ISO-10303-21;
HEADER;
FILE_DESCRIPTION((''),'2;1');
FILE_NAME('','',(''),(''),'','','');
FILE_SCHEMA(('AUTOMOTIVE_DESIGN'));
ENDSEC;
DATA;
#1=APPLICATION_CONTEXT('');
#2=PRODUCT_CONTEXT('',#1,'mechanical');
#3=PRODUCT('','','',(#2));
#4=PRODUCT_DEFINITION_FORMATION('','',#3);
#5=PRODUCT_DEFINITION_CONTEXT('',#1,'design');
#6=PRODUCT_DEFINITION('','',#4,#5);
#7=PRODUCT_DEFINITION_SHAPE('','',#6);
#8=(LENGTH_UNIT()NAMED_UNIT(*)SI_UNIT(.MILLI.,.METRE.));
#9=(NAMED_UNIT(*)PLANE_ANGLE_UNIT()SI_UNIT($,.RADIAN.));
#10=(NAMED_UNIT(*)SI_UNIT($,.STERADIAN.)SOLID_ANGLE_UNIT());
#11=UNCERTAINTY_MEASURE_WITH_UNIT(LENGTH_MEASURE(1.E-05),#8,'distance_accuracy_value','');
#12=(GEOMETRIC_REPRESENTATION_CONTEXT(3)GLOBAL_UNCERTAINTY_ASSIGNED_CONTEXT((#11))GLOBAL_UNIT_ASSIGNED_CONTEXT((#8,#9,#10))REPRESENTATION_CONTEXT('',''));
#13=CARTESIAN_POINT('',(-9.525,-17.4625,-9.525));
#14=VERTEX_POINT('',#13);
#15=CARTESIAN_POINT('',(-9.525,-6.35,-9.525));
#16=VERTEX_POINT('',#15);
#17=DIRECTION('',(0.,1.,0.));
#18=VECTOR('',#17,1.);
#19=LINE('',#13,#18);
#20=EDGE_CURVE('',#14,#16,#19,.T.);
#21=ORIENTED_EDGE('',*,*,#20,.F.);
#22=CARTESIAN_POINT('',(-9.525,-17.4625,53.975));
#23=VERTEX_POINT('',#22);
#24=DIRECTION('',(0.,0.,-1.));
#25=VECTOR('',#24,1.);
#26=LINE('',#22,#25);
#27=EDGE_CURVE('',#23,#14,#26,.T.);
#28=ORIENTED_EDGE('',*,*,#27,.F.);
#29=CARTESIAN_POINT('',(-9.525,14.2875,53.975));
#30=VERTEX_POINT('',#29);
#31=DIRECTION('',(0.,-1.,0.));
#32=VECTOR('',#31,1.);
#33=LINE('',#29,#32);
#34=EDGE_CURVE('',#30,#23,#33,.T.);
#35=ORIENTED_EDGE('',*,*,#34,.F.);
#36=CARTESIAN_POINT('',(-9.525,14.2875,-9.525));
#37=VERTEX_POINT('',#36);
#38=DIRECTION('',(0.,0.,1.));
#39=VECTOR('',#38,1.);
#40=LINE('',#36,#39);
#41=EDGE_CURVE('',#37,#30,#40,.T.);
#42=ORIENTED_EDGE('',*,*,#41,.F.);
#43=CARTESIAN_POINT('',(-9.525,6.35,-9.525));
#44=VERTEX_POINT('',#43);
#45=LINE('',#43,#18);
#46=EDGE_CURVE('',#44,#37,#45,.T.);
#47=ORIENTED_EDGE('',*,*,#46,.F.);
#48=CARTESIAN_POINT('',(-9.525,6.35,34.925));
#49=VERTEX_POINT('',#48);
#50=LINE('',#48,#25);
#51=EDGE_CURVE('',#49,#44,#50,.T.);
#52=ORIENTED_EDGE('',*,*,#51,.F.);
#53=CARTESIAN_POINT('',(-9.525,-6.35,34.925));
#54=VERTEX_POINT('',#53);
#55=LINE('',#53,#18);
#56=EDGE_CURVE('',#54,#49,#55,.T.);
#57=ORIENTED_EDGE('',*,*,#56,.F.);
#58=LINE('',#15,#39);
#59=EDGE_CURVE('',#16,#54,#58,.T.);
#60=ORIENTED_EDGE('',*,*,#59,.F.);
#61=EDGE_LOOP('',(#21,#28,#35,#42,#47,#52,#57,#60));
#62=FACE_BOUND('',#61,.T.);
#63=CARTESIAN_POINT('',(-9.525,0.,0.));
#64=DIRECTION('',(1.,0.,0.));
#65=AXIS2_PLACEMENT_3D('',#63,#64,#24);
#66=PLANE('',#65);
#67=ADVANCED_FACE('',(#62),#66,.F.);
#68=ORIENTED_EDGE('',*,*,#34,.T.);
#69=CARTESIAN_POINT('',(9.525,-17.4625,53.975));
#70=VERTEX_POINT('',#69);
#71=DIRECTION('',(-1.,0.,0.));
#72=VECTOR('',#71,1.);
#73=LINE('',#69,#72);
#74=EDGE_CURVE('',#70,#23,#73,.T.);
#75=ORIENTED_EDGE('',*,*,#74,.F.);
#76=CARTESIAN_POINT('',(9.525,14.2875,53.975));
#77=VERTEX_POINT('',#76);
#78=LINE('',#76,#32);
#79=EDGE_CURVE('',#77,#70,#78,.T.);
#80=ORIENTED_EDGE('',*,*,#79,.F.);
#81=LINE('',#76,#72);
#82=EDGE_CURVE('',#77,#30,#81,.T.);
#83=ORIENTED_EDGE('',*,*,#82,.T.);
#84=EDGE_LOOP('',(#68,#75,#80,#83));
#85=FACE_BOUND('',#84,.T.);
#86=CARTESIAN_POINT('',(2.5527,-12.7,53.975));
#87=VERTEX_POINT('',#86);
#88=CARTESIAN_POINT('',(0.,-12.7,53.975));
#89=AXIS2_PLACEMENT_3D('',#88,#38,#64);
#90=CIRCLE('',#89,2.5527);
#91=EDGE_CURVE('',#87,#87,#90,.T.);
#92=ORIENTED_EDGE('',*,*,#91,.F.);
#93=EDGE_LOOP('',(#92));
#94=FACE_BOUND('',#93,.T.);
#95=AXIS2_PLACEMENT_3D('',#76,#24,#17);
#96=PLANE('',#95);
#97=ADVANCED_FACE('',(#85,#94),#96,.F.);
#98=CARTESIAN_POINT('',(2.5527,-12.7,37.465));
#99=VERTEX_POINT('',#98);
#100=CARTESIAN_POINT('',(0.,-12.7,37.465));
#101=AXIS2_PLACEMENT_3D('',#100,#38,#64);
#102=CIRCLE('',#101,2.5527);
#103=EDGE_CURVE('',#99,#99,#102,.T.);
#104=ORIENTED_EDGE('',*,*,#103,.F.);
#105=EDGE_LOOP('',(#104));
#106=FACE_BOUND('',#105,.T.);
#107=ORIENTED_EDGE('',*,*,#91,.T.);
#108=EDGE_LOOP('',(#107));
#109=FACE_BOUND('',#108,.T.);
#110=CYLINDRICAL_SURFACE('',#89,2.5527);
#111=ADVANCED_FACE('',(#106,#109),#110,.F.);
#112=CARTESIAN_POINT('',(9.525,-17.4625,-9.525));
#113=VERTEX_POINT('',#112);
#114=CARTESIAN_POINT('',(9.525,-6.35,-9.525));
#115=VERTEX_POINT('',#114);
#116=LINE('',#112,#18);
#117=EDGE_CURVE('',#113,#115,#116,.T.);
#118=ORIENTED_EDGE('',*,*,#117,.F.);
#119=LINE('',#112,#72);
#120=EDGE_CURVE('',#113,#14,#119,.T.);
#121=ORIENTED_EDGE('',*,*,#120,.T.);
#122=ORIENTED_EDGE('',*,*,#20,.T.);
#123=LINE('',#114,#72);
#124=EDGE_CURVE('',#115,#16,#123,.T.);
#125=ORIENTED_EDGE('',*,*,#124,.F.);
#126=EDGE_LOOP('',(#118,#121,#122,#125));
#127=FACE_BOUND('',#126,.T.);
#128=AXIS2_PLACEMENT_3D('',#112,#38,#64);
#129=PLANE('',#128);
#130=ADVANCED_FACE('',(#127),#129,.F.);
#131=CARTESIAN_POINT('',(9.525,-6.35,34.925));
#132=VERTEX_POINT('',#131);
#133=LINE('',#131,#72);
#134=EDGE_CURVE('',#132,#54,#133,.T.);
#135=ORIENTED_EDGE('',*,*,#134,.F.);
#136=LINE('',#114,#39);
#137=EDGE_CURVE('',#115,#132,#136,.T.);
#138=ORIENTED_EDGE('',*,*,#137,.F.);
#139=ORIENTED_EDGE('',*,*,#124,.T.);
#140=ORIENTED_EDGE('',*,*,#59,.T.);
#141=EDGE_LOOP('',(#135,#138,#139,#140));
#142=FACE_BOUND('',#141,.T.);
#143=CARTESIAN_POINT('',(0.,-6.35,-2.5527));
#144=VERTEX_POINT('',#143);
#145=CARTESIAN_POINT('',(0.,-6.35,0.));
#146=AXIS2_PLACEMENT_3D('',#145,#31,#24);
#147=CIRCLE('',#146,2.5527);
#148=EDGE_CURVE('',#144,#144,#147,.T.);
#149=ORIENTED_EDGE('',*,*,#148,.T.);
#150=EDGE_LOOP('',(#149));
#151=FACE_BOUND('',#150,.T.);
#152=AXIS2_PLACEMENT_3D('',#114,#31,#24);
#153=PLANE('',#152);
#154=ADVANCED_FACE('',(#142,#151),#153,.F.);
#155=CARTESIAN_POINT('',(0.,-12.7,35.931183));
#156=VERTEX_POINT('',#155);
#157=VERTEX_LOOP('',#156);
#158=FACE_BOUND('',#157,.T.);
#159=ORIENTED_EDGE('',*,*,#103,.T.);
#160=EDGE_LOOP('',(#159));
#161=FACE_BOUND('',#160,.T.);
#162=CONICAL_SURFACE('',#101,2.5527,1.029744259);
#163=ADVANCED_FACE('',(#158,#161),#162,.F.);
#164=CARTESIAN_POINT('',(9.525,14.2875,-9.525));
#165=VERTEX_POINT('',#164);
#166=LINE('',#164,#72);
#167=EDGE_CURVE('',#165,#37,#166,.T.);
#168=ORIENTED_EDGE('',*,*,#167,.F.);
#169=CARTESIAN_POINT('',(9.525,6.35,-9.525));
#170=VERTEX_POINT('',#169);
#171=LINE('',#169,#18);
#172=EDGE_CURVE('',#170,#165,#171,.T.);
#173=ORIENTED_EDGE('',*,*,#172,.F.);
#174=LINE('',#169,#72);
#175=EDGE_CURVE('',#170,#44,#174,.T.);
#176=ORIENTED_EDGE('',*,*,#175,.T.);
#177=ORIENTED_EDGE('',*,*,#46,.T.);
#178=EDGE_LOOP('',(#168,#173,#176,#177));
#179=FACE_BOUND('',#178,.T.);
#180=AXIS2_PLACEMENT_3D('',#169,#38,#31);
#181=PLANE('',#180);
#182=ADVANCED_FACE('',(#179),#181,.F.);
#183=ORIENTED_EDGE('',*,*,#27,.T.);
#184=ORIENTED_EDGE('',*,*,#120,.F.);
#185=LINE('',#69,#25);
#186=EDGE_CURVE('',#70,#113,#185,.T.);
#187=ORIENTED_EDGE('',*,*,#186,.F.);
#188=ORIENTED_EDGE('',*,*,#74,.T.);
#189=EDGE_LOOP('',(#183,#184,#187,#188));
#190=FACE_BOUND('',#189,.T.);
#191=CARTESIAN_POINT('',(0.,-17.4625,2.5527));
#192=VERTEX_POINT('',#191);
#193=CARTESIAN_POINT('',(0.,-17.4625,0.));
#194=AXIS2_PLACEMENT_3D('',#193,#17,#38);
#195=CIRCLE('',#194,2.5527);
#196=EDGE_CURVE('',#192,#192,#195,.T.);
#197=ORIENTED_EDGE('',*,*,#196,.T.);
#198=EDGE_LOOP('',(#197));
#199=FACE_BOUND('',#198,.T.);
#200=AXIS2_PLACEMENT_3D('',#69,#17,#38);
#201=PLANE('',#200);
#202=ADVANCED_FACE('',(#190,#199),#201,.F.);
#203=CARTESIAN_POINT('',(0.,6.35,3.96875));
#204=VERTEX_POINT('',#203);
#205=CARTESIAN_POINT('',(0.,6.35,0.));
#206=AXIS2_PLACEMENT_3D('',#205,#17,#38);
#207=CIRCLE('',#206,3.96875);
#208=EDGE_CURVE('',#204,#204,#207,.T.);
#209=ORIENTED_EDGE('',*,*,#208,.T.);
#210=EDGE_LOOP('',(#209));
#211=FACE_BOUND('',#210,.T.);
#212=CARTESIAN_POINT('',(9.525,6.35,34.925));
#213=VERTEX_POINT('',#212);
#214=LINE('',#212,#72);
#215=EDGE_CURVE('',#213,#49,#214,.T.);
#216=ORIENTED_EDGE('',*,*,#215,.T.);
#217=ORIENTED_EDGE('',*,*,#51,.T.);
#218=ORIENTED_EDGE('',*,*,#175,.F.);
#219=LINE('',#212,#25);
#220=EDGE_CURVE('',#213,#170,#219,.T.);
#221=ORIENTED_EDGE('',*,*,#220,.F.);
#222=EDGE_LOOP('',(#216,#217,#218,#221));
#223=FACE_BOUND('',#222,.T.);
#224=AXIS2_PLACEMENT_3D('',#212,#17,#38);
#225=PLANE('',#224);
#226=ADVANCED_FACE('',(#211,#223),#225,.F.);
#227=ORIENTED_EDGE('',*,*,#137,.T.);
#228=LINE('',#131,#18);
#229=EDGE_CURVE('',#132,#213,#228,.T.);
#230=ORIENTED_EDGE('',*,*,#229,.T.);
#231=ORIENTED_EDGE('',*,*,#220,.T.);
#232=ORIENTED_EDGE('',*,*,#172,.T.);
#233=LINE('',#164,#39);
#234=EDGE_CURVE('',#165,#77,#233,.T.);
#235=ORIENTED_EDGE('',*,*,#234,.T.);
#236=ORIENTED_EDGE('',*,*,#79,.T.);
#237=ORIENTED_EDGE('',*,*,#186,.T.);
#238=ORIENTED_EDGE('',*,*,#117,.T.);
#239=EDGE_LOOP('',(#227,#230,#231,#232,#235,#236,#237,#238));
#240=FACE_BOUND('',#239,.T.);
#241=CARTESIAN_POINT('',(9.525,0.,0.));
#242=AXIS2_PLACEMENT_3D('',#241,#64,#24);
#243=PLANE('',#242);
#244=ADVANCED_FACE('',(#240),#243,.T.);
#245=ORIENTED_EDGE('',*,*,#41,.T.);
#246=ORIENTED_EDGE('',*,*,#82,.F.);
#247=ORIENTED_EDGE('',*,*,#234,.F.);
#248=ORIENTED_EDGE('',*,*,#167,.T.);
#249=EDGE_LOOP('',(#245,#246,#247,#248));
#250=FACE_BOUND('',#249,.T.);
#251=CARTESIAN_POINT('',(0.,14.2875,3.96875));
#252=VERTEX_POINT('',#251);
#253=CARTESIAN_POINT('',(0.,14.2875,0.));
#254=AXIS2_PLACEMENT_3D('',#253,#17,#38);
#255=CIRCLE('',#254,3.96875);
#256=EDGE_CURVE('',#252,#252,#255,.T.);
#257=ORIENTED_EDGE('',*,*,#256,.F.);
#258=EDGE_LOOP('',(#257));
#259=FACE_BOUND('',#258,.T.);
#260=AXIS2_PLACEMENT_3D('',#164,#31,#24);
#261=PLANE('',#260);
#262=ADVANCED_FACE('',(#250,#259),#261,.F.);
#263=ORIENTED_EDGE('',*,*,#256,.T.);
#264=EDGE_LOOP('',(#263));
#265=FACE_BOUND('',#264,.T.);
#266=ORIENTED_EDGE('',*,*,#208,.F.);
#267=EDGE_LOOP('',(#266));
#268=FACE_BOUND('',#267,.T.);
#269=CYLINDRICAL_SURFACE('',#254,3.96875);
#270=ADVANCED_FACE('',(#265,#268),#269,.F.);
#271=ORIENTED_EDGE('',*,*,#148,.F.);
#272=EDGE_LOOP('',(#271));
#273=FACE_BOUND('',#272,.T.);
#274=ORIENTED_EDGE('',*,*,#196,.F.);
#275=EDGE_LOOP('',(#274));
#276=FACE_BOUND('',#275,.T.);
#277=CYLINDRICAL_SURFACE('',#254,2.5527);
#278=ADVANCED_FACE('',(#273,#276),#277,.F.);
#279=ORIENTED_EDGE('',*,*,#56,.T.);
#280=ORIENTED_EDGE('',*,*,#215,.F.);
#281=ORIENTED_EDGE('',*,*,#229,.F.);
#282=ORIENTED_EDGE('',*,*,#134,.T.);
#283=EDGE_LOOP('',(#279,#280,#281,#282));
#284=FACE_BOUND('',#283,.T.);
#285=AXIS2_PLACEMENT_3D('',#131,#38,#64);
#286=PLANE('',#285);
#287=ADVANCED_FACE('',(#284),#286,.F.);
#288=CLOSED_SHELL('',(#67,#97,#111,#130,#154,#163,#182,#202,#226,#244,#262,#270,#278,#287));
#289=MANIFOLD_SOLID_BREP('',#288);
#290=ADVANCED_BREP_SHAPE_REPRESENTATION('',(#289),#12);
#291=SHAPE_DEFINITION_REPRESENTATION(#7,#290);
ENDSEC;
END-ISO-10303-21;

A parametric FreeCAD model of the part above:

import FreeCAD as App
import Part
import Sketcher
from FreeCAD import Vector
Q = App.Units.Quantity


def add_polygon(sketch, points):
    """Adds a closed chain of lines whose ends are joined by coincident constraints."""
    first, n = sketch.GeometryCount, len(points)
    for a, b in zip(points, points[1:] + points[:1]):
        sketch.addGeometry(Part.LineSegment(App.Vector(*a, 0), App.Vector(*b, 0)), False)
    for i in range(n):
        sketch.addConstraint(Sketcher.Constraint("Coincident", first + i, 2, first + (i + 1) % n, 1))

doc = App.newDocument("Part")
body = doc.addObject("PartDesign::Body", "Body")

sketch1 = body.newObject("Sketcher::SketchObject", "Sketch")
sketch1.AttachmentSupport = (doc.getObject("YZ_Plane"), [""])
sketch1.MapMode = "FlatFace"
add_polygon(sketch1, [(14, 54), (-17, 54), (-17, -10), (-6, -10), (-6, 35), (6, 35), (6, -10), (14, -10)])
sketch1.addConstraint(Sketcher.Constraint("Horizontal", 0))
sketch1.addConstraint(Sketcher.Constraint("Vertical", 1))
sketch1.addConstraint(Sketcher.Constraint("Horizontal", 2))
sketch1.addConstraint(Sketcher.Constraint("Vertical", 3))
sketch1.addConstraint(Sketcher.Constraint("Horizontal", 4))
sketch1.addConstraint(Sketcher.Constraint("Vertical", 5))
sketch1.addConstraint(Sketcher.Constraint("Horizontal", 6))
sketch1.addConstraint(Sketcher.Constraint("Vertical", 7))
sketch1.addConstraint(Sketcher.Constraint("Symmetric", 2, 2, 5, 2, -2))
sketch1.addConstraint(Sketcher.Constraint("DistanceX", 4, 1, 4, 2, Q("0.5 in")))
sketch1.addConstraint(Sketcher.Constraint("DistanceY", 1, 2, 1, 1, Q("2.5 in")))
sketch1.addConstraint(Sketcher.Constraint("DistanceX", 0, 2, 0, 1, Q("1.25 in")))
sketch1.addConstraint(Sketcher.Constraint("DistanceY", 3, 1, 3, 2, Q("1.75 in")))
sketch1.addConstraint(Sketcher.Constraint("DistanceX", 2, 1, 2, 2, Q("0.4375 in")))
sketch1.addConstraint(Sketcher.Constraint("DistanceY", -1, 1, 0, 2, Q("2.125 in")))
pad1 = body.newObject("PartDesign::Pad", "Pad")
pad1.Profile = sketch1
pad1.Length = Q("0.75 in")
pad1.Midplane = True

sketch2 = body.newObject("Sketcher::SketchObject", "Sketch001")
sketch2.AttachmentSupport = (doc.getObject("XZ_Plane"), [""])
sketch2.MapMode = "FlatFace"
sketch2.AttachmentOffset = App.Placement(Vector(0, 0, -0.5625 * 25.4), App.Rotation())
sketch2.addGeometry(Part.Circle(Vector(0, 0, 0), Vector(0, 0, 1), 2.6), False)
sketch2.addConstraint(Sketcher.Constraint("Coincident", 0, 3, -1, 1))
sketch2.addConstraint(Sketcher.Constraint("Diameter", 0, Q("0.201 in")))
doc.recompute()
hole = body.newObject("PartDesign::Hole", "Hole")
hole.Profile = sketch2
hole.ThreadType = "None"
hole.Diameter = Q("0.201 in")
hole.DepthType = "ThroughAll"
hole.Reversed = True

sketch3 = body.newObject("Sketcher::SketchObject", "Sketch002")
sketch3.AttachmentSupport = (doc.getObject("XZ_Plane"), [""])
sketch3.MapMode = "FlatFace"
sketch3.AttachmentOffset = App.Placement(Vector(0, 0, -0.5625 * 25.4), App.Rotation())
sketch3.addGeometry(Part.Circle(Vector(0, 0, 0), Vector(0, 0, 1), 4), False)
sketch3.addConstraint(Sketcher.Constraint("Coincident", 0, 3, -1, 1))
sketch3.addConstraint(Sketcher.Constraint("Diameter", 0, Q("0.3125 in")))
doc.recompute()
hole2 = body.newObject("PartDesign::Hole", "Hole001")
hole2.Profile = sketch3
hole2.ThreadType = "None"
hole2.Diameter = Q("0.3125 in")
hole2.DepthType = "Dimension"
hole2.Depth = 20.6365
hole2.DrillPoint = "Flat"
hole2.Reversed = True

sketch4 = body.newObject("Sketcher::SketchObject", "Sketch003")
sketch4.AttachmentSupport = (doc.getObject("XY_Plane"), [""])
sketch4.MapMode = "FlatFace"
sketch4.AttachmentOffset = App.Placement(Vector(0, 0, 2.125 * 25.4), App.Rotation())
sketch4.addGeometry(Part.Circle(Vector(0, -12.7, 0), Vector(0, 0, 1), 2.6), False)
sketch4.addConstraint(Sketcher.Constraint("PointOnObject", 0, 3, -2))
sketch4.addConstraint(Sketcher.Constraint("Diameter", 0, Q("0.201 in")))
sketch4.addConstraint(Sketcher.Constraint("DistanceY", 0, 3, -1, 1, Q("0.5 in")))
doc.recompute()
hole3 = body.newObject("PartDesign::Hole", "Hole002")
hole3.Profile = sketch4
hole3.ThreadType = "None"
hole3.Diameter = Q("0.201 in")
hole3.DepthType = "Dimension"
hole3.Depth = Q("0.65 in")
hole3.DrillPoint = "Angled"
hole3.DrillPointAngle = 118

doc.recompute()
